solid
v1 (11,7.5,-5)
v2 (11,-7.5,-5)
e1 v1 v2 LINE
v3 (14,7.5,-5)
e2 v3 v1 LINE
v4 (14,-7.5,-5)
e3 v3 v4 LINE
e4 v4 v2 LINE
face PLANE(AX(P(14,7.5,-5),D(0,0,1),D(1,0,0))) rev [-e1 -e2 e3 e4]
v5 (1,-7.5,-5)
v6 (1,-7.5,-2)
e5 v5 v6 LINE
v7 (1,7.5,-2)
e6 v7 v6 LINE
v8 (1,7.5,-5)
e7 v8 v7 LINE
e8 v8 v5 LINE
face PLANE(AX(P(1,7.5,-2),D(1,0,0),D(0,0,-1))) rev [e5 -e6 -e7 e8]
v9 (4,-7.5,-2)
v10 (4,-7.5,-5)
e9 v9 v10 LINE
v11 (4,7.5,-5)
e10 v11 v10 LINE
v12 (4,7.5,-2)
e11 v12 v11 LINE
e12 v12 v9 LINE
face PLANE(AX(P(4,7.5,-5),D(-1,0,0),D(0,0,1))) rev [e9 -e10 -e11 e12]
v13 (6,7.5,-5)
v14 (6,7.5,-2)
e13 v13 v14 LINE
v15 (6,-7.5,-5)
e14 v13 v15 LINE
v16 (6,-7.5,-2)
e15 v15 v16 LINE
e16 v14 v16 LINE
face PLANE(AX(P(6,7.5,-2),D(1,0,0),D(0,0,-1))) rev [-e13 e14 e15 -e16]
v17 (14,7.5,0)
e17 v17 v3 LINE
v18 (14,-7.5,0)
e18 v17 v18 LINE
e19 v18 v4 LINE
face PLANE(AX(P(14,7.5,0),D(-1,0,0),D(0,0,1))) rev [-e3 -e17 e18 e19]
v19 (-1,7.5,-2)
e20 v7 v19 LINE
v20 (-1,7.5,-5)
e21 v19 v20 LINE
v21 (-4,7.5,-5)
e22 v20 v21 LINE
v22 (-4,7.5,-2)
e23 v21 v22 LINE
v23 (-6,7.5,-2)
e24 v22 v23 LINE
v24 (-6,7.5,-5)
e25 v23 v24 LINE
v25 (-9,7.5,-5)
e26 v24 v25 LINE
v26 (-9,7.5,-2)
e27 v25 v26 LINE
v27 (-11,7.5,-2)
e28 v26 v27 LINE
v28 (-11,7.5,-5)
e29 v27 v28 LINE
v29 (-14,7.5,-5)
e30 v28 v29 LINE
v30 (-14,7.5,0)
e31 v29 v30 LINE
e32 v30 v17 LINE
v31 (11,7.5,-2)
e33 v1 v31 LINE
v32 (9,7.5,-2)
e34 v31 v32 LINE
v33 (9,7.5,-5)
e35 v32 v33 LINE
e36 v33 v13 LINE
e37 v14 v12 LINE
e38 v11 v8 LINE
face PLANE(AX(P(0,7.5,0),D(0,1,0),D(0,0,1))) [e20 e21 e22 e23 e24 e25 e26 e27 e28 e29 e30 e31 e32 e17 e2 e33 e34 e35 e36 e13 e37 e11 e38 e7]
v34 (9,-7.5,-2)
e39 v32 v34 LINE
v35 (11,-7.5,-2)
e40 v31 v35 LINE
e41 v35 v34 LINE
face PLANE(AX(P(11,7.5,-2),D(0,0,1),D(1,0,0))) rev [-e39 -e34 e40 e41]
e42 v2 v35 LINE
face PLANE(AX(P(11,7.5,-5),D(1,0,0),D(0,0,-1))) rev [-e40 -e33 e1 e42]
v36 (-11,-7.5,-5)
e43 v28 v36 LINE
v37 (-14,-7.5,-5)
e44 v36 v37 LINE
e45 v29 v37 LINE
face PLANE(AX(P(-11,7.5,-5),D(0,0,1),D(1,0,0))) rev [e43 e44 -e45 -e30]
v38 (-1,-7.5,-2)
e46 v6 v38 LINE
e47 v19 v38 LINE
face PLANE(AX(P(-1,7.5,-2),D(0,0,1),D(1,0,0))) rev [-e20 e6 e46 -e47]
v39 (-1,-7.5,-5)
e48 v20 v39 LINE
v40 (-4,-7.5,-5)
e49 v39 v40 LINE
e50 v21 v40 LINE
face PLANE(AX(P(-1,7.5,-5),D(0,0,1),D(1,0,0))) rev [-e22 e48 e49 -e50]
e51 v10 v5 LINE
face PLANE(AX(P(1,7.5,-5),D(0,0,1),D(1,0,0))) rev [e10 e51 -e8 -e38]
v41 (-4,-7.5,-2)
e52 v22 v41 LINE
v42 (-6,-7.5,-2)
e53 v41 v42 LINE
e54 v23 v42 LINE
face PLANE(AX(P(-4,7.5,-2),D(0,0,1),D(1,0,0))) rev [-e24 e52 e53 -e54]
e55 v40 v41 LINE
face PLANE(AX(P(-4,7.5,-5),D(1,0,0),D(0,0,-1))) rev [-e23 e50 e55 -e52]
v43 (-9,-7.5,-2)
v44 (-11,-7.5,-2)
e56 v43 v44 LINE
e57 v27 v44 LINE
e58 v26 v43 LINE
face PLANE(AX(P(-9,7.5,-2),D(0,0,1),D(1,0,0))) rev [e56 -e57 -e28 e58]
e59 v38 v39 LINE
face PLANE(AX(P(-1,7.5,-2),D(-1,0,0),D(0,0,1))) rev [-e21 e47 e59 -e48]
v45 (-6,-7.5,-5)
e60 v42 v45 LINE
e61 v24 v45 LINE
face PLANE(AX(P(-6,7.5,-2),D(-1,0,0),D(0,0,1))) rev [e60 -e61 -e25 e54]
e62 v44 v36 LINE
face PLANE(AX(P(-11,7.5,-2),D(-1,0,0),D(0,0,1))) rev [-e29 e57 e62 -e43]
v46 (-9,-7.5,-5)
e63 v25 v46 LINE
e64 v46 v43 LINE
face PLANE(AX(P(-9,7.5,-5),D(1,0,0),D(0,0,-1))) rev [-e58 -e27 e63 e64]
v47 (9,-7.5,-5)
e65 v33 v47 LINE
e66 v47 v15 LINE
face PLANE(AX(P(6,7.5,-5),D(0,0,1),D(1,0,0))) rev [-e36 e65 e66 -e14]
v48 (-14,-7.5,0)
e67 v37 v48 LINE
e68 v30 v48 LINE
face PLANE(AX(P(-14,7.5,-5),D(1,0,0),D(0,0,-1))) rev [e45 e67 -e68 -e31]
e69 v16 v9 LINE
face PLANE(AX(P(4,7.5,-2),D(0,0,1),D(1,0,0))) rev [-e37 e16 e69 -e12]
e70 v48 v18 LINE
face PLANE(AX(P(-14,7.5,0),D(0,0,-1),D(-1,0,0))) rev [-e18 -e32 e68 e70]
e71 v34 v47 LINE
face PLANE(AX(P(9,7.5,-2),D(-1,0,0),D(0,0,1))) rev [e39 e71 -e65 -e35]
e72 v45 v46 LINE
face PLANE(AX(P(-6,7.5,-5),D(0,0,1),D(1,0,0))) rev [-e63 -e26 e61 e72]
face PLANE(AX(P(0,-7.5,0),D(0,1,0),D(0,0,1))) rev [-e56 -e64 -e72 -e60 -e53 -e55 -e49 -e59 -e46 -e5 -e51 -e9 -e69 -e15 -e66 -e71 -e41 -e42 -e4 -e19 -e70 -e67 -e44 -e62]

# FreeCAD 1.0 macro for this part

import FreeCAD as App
import Part
import Sketcher
from FreeCAD import Vector

doc = App.newDocument("Part")
body = doc.addObject("PartDesign::Body", "Body")

sketch1 = body.newObject("Sketcher::SketchObject", "Sketch")
sketch1.AttachmentSupport = (doc.getObject("XZ_Plane"), [""])
sketch1.MapMode = "FlatFace"
sketch1.addGeometry(Part.LineSegment(Vector(-14, 0, 0), Vector(14, 0, 0)), False)
sketch1.addGeometry(Part.LineSegment(Vector(14, 0, 0), Vector(14, -5, 0)), False)
sketch1.addGeometry(Part.LineSegment(Vector(14, -5, 0), Vector(11, -5, 0)), False)
sketch1.addGeometry(Part.LineSegment(Vector(11, -5, 0), Vector(11, -2, 0)), False)
sketch1.addGeometry(Part.LineSegment(Vector(11, -2, 0), Vector(9, -2, 0)), False)
sketch1.addGeometry(Part.LineSegment(Vector(9, -2, 0), Vector(9, -5, 0)), False)
sketch1.addGeometry(Part.LineSegment(Vector(9, -5, 0), Vector(6, -5, 0)), False)
sketch1.addGeometry(Part.LineSegment(Vector(6, -5, 0), Vector(6, -2, 0)), False)
sketch1.addGeometry(Part.LineSegment(Vector(6, -2, 0), Vector(4, -2, 0)), False)
sketch1.addGeometry(Part.LineSegment(Vector(4, -2, 0), Vector(4, -5, 0)), False)
sketch1.addGeometry(Part.LineSegment(Vector(4, -5, 0), Vector(1, -5, 0)), False)
sketch1.addGeometry(Part.LineSegment(Vector(1, -5, 0), Vector(1, -2, 0)), False)
sketch1.addGeometry(Part.LineSegment(Vector(1, -2, 0), Vector(-1, -2, 0)), False)
sketch1.addGeometry(Part.LineSegment(Vector(-1, -2, 0), Vector(-1, -5, 0)), False)
sketch1.addGeometry(Part.LineSegment(Vector(-1, -5, 0), Vector(-4, -5, 0)), False)
sketch1.addGeometry(Part.LineSegment(Vector(-4, -5, 0), Vector(-4, -2, 0)), False)
sketch1.addGeometry(Part.LineSegment(Vector(-4, -2, 0), Vector(-6, -2, 0)), False)
sketch1.addGeometry(Part.LineSegment(Vector(-6, -2, 0), Vector(-6, -5, 0)), False)
sketch1.addGeometry(Part.LineSegment(Vector(-6, -5, 0), Vector(-9, -5, 0)), False)
sketch1.addGeometry(Part.LineSegment(Vector(-9, -5, 0), Vector(-9, -2, 0)), False)
sketch1.addGeometry(Part.LineSegment(Vector(-9, -2, 0), Vector(-11, -2, 0)), False)
sketch1.addGeometry(Part.LineSegment(Vector(-11, -2, 0), Vector(-11, -5, 0)), False)
sketch1.addGeometry(Part.LineSegment(Vector(-11, -5, 0), Vector(-14, -5, 0)), False)
sketch1.addGeometry(Part.LineSegment(Vector(-14, -5, 0), Vector(-14, 0, 0)), False)
sketch1.addConstraint(Sketcher.Constraint("Coincident", 0, 2, 1, 1))
sketch1.addConstraint(Sketcher.Constraint("Coincident", 1, 2, 2, 1))
sketch1.addConstraint(Sketcher.Constraint("Coincident", 2, 2, 3, 1))
sketch1.addConstraint(Sketcher.Constraint("Coincident", 3, 2, 4, 1))
sketch1.addConstraint(Sketcher.Constraint("Coincident", 4, 2, 5, 1))
sketch1.addConstraint(Sketcher.Constraint("Coincident", 5, 2, 6, 1))
sketch1.addConstraint(Sketcher.Constraint("Coincident", 6, 2, 7, 1))
sketch1.addConstraint(Sketcher.Constraint("Coincident", 7, 2, 8, 1))
sketch1.addConstraint(Sketcher.Constraint("Coincident", 8, 2, 9, 1))
sketch1.addConstraint(Sketcher.Constraint("Coincident", 9, 2, 10, 1))
sketch1.addConstraint(Sketcher.Constraint("Coincident", 10, 2, 11, 1))
sketch1.addConstraint(Sketcher.Constraint("Coincident", 11, 2, 12, 1))
sketch1.addConstraint(Sketcher.Constraint("Coincident", 12, 2, 13, 1))
sketch1.addConstraint(Sketcher.Constraint("Coincident", 13, 2, 14, 1))
sketch1.addConstraint(Sketcher.Constraint("Coincident", 14, 2, 15, 1))
sketch1.addConstraint(Sketcher.Constraint("Coincident", 15, 2, 16, 1))
sketch1.addConstraint(Sketcher.Constraint("Coincident", 16, 2, 17, 1))
sketch1.addConstraint(Sketcher.Constraint("Coincident", 17, 2, 18, 1))
sketch1.addConstraint(Sketcher.Constraint("Coincident", 18, 2, 19, 1))
sketch1.addConstraint(Sketcher.Constraint("Coincident", 19, 2, 20, 1))
sketch1.addConstraint(Sketcher.Constraint("Coincident", 20, 2, 21, 1))
sketch1.addConstraint(Sketcher.Constraint("Coincident", 21, 2, 22, 1))
sketch1.addConstraint(Sketcher.Constraint("Coincident", 22, 2, 23, 1))
sketch1.addConstraint(Sketcher.Constraint("Coincident", 23, 2, 0, 1))
sketch1.addConstraint(Sketcher.Constraint("Horizontal", 0))
sketch1.addConstraint(Sketcher.Constraint("Vertical", 1))
sketch1.addConstraint(Sketcher.Constraint("Horizontal", 2))
sketch1.addConstraint(Sketcher.Constraint("Vertical", 3))
sketch1.addConstraint(Sketcher.Constraint("Horizontal", 4))
sketch1.addConstraint(Sketcher.Constraint("Vertical", 5))
sketch1.addConstraint(Sketcher.Constraint("Horizontal", 6))
sketch1.addConstraint(Sketcher.Constraint("Vertical", 7))
sketch1.addConstraint(Sketcher.Constraint("Horizontal", 8))
sketch1.addConstraint(Sketcher.Constraint("Vertical", 9))
sketch1.addConstraint(Sketcher.Constraint("Horizontal", 10))
sketch1.addConstraint(Sketcher.Constraint("Vertical", 11))
sketch1.addConstraint(Sketcher.Constraint("Horizontal", 12))
sketch1.addConstraint(Sketcher.Constraint("Vertical", 13))
sketch1.addConstraint(Sketcher.Constraint("Horizontal", 14))
sketch1.addConstraint(Sketcher.Constraint("Vertical", 15))
sketch1.addConstraint(Sketcher.Constraint("Horizontal", 16))
sketch1.addConstraint(Sketcher.Constraint("Vertical", 17))
sketch1.addConstraint(Sketcher.Constraint("Horizontal", 18))
sketch1.addConstraint(Sketcher.Constraint("Vertical", 19))
sketch1.addConstraint(Sketcher.Constraint("Horizontal", 20))
sketch1.addConstraint(Sketcher.Constraint("Vertical", 21))
sketch1.addConstraint(Sketcher.Constraint("Horizontal", 22))
sketch1.addConstraint(Sketcher.Constraint("Vertical", 23))
sketch1.addConstraint(Sketcher.Constraint("Symmetric", 0, 2, 23, 2, -1, 1))
sketch1.addConstraint(Sketcher.Constraint("Symmetric", 10, 2, 13, 2, -2))
sketch1.addConstraint(Sketcher.Constraint("Symmetric", 8, 2, 15, 2, -2))
sketch1.addConstraint(Sketcher.Constraint("Symmetric", 6, 2, 17, 2, -2))
sketch1.addConstraint(Sketcher.Constraint("Symmetric", 4, 2, 19, 2, -2))
sketch1.addConstraint(Sketcher.Constraint("Symmetric", 2, 2, 21, 2, -2))
sketch1.addConstraint(Sketcher.Constraint("Horizontal", 2, 2, 5, 2))
sketch1.addConstraint(Sketcher.Constraint("Horizontal", 4, 2, 7, 2))
sketch1.addConstraint(Sketcher.Constraint("Horizontal", 6, 2, 9, 2))
sketch1.addConstraint(Sketcher.Constraint("Horizontal", 8, 2, 11, 2))
sketch1.addConstraint(Sketcher.Constraint("Equal", 2, 6))
sketch1.addConstraint(Sketcher.Constraint("Equal", 4, 8))
sketch1.addConstraint(Sketcher.Constraint("Equal", 6, 10))
sketch1.addConstraint(Sketcher.Constraint("Equal", 8, 12))
sketch1.addConstraint(Sketcher.Constraint("Equal", 22, 3))
sketch1.addConstraint(Sketcher.Constraint("DistanceX", 0, 1, 0, 2, 28.0))
sketch1.addConstraint(Sketcher.Constraint("DistanceX", 2, 2, 2, 1, 3.0))
sketch1.addConstraint(Sketcher.Constraint("DistanceY", 1, 2, 1, 1, 5.0))
pad1 = body.newObject("PartDesign::Pad", "Pad")
pad1.Profile = sketch1
pad1.Length = 15
pad1.Midplane = True

doc.recompute()
